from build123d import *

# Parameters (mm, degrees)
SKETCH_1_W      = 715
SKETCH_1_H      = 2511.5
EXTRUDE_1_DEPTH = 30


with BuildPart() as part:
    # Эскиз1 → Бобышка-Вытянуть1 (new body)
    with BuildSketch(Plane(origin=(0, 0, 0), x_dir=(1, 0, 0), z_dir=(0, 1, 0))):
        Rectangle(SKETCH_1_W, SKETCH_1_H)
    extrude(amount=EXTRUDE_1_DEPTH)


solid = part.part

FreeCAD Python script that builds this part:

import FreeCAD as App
import Part
import Sketcher

V = App.Vector

doc = App.newDocument("Part")
body = doc.addObject("PartDesign::Body", "Body")

# Sketch on XZ plane
sketch1 = doc.addObject("Sketcher::SketchObject", "Sketch")
body.addObject(sketch1)
sketch1.AttachmentSupport = (doc.XZ_Plane, [""])
sketch1.MapMode = "FlatFace"
sketch1.addGeometry([
    Part.LineSegment(V(-358, -1256, 0), V(-358, 1256, 0)),
    Part.LineSegment(V(-358, 1256, 0), V(358, 1256, 0)),
    Part.LineSegment(V(358, 1256, 0), V(358, -1256, 0)),
    Part.LineSegment(V(358, -1256, 0), V(-358, -1256, 0)),
], False)
sketch1.addConstraint([
    Sketcher.Constraint("Coincident", 0, 2, 1, 1),
    Sketcher.Constraint("Coincident", 1, 2, 2, 1),
    Sketcher.Constraint("Coincident", 2, 2, 3, 1),
    Sketcher.Constraint("Coincident", 3, 2, 0, 1),
    Sketcher.Constraint("Vertical", 0),
    Sketcher.Constraint("Horizontal", 1),
    Sketcher.Constraint("Vertical", 2),
    Sketcher.Constraint("Horizontal", 3),
    Sketcher.Constraint("Symmetric", 0, 2, 2, 2, -1, 1),
    Sketcher.Constraint("DistanceX", 1, 1, 1, 2, 715.0),
    Sketcher.Constraint("DistanceY", 0, 1, 0, 2, 2511.5),
])
pad1 = doc.addObject("PartDesign::Pad", "Pad")
body.addObject(pad1)
pad1.Profile = sketch1
pad1.Length = 30
pad1.Reversed = True

doc.recompute()
